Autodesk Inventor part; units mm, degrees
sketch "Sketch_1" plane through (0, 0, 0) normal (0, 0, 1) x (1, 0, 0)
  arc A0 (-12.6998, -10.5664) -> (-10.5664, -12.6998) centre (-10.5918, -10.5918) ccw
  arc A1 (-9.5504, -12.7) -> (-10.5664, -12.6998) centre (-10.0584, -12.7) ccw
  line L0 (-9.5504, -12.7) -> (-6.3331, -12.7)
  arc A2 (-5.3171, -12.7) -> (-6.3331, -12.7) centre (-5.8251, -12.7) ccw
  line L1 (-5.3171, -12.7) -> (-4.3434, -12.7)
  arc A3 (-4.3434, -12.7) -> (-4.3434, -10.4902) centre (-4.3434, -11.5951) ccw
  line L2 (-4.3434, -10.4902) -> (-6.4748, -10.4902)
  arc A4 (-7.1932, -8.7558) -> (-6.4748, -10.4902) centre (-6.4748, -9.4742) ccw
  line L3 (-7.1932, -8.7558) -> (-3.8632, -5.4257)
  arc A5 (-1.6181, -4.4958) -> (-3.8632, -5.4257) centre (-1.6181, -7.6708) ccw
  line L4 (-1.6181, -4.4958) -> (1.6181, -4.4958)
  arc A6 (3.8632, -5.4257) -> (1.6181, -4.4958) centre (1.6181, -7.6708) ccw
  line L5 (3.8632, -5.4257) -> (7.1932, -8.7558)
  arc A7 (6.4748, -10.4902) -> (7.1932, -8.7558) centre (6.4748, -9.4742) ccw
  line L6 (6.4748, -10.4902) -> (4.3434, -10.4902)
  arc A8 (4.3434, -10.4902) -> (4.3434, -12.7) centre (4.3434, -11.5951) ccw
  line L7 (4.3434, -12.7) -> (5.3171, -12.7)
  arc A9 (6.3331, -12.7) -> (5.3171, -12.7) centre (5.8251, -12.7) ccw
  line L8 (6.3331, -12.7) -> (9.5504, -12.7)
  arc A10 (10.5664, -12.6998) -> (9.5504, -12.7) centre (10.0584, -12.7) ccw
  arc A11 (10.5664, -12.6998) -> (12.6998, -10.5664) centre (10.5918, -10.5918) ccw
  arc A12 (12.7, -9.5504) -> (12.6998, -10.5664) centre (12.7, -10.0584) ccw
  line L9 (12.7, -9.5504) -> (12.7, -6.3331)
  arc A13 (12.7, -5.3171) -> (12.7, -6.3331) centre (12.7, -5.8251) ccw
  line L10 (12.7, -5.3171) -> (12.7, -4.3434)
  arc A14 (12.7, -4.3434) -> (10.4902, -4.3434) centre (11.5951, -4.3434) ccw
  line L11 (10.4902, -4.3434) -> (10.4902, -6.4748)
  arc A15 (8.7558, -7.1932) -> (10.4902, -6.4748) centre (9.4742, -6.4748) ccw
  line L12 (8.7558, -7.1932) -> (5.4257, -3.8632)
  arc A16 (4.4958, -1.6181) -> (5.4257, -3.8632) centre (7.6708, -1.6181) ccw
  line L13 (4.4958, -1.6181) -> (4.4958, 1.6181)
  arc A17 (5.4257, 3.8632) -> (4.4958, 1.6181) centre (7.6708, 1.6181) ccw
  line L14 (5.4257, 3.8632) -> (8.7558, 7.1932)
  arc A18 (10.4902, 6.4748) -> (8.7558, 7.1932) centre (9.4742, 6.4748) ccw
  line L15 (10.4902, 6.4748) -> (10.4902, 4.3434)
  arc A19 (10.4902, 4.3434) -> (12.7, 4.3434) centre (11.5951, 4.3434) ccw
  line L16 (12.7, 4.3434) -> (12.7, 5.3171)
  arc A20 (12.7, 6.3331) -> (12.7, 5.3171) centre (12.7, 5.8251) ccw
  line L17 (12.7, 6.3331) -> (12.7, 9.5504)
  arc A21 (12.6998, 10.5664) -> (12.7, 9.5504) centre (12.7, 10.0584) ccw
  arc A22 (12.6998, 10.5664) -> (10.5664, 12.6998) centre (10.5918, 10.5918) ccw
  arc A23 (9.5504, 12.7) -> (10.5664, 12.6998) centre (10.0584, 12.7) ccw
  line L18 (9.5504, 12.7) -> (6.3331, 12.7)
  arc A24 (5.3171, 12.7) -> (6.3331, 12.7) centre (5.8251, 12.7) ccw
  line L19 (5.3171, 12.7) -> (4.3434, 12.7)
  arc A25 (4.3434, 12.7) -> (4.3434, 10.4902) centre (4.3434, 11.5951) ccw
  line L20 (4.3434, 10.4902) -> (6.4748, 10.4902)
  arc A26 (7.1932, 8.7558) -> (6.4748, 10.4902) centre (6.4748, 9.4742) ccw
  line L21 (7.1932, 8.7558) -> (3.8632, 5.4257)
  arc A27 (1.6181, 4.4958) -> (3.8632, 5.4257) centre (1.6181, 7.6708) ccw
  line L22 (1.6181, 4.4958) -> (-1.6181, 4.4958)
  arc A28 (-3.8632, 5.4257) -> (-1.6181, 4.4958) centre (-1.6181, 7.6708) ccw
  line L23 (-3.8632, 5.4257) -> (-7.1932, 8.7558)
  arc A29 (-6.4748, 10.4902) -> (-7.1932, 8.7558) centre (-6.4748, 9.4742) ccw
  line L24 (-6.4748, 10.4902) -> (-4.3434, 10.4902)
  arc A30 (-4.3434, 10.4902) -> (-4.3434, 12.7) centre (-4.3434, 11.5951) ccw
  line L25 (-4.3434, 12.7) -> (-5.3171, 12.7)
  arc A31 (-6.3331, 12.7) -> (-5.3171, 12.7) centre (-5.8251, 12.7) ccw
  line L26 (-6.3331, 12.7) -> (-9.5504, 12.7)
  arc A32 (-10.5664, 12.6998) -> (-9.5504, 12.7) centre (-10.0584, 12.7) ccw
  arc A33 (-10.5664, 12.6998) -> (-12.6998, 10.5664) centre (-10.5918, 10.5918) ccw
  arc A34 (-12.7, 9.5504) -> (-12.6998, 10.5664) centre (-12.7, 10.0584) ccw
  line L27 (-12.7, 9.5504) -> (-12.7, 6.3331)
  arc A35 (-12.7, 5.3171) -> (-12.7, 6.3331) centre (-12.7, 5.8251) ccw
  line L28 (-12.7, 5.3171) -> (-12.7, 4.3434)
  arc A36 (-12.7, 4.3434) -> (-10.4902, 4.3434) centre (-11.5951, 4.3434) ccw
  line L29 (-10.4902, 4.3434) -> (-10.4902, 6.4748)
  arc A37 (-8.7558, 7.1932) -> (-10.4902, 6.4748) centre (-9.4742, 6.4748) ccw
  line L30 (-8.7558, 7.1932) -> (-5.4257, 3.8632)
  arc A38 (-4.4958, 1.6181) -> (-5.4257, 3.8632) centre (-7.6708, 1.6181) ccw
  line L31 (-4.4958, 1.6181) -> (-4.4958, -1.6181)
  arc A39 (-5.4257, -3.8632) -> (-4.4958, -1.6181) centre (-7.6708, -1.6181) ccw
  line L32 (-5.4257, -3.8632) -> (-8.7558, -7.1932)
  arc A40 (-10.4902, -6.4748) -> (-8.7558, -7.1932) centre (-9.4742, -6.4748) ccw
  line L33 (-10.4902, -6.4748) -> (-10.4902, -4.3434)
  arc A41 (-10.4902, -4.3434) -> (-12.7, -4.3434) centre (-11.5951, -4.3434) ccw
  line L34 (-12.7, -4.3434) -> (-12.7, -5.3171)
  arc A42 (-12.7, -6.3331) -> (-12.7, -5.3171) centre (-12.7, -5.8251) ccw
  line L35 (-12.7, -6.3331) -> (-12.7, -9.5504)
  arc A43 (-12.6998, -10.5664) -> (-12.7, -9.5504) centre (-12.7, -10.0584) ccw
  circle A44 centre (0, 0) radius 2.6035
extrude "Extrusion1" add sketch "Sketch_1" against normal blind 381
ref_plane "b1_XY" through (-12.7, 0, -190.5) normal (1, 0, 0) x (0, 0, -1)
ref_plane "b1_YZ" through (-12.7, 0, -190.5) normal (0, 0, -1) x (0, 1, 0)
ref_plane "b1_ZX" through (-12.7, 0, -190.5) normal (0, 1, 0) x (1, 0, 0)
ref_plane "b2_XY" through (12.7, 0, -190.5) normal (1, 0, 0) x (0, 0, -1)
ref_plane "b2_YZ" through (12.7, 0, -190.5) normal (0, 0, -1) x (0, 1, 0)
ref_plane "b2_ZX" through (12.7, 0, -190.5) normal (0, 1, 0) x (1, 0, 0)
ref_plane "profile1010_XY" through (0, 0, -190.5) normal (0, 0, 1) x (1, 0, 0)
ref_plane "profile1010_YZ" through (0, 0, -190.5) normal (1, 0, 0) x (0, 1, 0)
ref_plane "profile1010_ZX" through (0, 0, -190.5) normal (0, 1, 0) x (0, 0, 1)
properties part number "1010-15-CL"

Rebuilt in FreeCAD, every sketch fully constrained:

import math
import FreeCAD as App
import Part
import Sketcher
from FreeCAD import Vector
Q = App.Units.Quantity

doc = App.newDocument("Part")
body = doc.addObject("PartDesign::Body", "Body")

# Sketch on XY plane
sketch1 = body.newObject("Sketcher::SketchObject", "Sketch")
sketch1.AttachmentSupport = (doc.getObject("XY_Plane"), [""])
sketch1.MapMode = "FlatFace"
sketch1.addGeometry([
    Part.ArcOfCircle(Part.Circle(Vector(-12.7, -10.1, 0), Vector(0, 0, 1), 0.5), math.radians(-90), math.radians(90)),  # 0
    Part.ArcOfCircle(Part.Circle(Vector(-10.6, -10.6, 0), Vector(0, 0, 1), 2.1), math.radians(179), math.radians(271)),  # 1
    Part.ArcOfCircle(Part.Circle(Vector(-10.1, -12.7, 0), Vector(0, 0, 1), 0.5), math.radians(0), math.radians(180)),  # 2
    Part.LineSegment(Vector(-9.6, -12.7, 0), Vector(-6.3, -12.7, 0)),  # 3
    Part.ArcOfCircle(Part.Circle(Vector(-5.8, -12.7, 0), Vector(0, 0, 1), 0.5), math.radians(0), math.radians(180)),  # 4
    Part.LineSegment(Vector(-5.3, -12.7, 0), Vector(-4.3, -12.7, 0)),  # 5
    Part.ArcOfCircle(Part.Circle(Vector(-4.3, -11.6, 0), Vector(0, 0, 1), 1.1), math.radians(-90), math.radians(90)),  # 6
    Part.LineSegment(Vector(-4.3, -10.5, 0), Vector(-6.5, -10.5, 0)),  # 7
    Part.ArcOfCircle(Part.Circle(Vector(-6.5, -9.5, 0), Vector(0, 0, 1), 1), math.radians(135), math.radians(270)),  # 8
    Part.LineSegment(Vector(-7.2, -8.8, 0), Vector(-3.9, -5.4, 0)),  # 9
    Part.ArcOfCircle(Part.Circle(Vector(-1.6, -7.7, 0), Vector(0, 0, 1), 3.2), math.radians(90), math.radians(135)),  # 10
    Part.LineSegment(Vector(-1.6, -4.5, 0), Vector(1.6, -4.5, 0)),  # 11
    Part.ArcOfCircle(Part.Circle(Vector(1.6, -7.7, 0), Vector(0, 0, 1), 3.2), math.radians(45), math.radians(90)),  # 12
    Part.LineSegment(Vector(3.9, -5.4, 0), Vector(7.2, -8.8, 0)),  # 13
    Part.ArcOfCircle(Part.Circle(Vector(6.5, -9.5, 0), Vector(0, 0, 1), 1), math.radians(-90), math.radians(45)),  # 14
    Part.LineSegment(Vector(6.5, -10.5, 0), Vector(4.3, -10.5, 0)),  # 15
    Part.ArcOfCircle(Part.Circle(Vector(4.3, -11.6, 0), Vector(0, 0, 1), 1.1), math.radians(90), math.radians(270)),  # 16
    Part.LineSegment(Vector(4.3, -12.7, 0), Vector(5.3, -12.7, 0)),  # 17
    Part.ArcOfCircle(Part.Circle(Vector(5.8, -12.7, 0), Vector(0, 0, 1), 0.5), math.radians(0), math.radians(180)),  # 18
    Part.LineSegment(Vector(6.3, -12.7, 0), Vector(9.6, -12.7, 0)),  # 19
    Part.ArcOfCircle(Part.Circle(Vector(10.1, -12.7, 0), Vector(0, 0, 1), 0.5), math.radians(0), math.radians(180)),  # 20
    Part.ArcOfCircle(Part.Circle(Vector(10.6, -10.6, 0), Vector(0, 0, 1), 2.1), math.radians(-91), math.radians(1)),  # 21
    Part.ArcOfCircle(Part.Circle(Vector(12.7, -10.1, 0), Vector(0, 0, 1), 0.5), math.radians(90), math.radians(270)),  # 22
    Part.LineSegment(Vector(12.7, -9.6, 0), Vector(12.7, -6.3, 0)),  # 23
    Part.ArcOfCircle(Part.Circle(Vector(12.7, -5.8, 0), Vector(0, 0, 1), 0.5), math.radians(90), math.radians(270)),  # 24
    Part.LineSegment(Vector(12.7, -5.3, 0), Vector(12.7, -4.3, 0)),  # 25
    Part.ArcOfCircle(Part.Circle(Vector(11.6, -4.3, 0), Vector(0, 0, 1), 1.1), math.radians(0), math.radians(180)),  # 26
    Part.LineSegment(Vector(10.5, -4.3, 0), Vector(10.5, -6.5, 0)),  # 27
    Part.ArcOfCircle(Part.Circle(Vector(9.5, -6.5, 0), Vector(0, 0, 1), 1), math.radians(-135), math.radians(0)),  # 28
    Part.LineSegment(Vector(8.8, -7.2, 0), Vector(5.4, -3.9, 0)),  # 29
    Part.ArcOfCircle(Part.Circle(Vector(7.7, -1.6, 0), Vector(0, 0, 1), 3.2), math.radians(180), math.radians(225)),  # 30
    Part.LineSegment(Vector(4.5, -1.6, 0), Vector(4.5, 1.6, 0)),  # 31
    Part.ArcOfCircle(Part.Circle(Vector(7.7, 1.6, 0), Vector(0, 0, 1), 3.2), math.radians(135), math.radians(180)),  # 32
    Part.LineSegment(Vector(5.4, 3.9, 0), Vector(8.8, 7.2, 0)),  # 33
    Part.ArcOfCircle(Part.Circle(Vector(9.5, 6.5, 0), Vector(0, 0, 1), 1), math.radians(0), math.radians(135)),  # 34
    Part.LineSegment(Vector(10.5, 6.5, 0), Vector(10.5, 4.3, 0)),  # 35
    Part.ArcOfCircle(Part.Circle(Vector(11.6, 4.3, 0), Vector(0, 0, 1), 1.1), math.radians(180), math.radians(360)),  # 36
    Part.LineSegment(Vector(12.7, 4.3, 0), Vector(12.7, 5.3, 0)),  # 37
    Part.ArcOfCircle(Part.Circle(Vector(12.7, 5.8, 0), Vector(0, 0, 1), 0.5), math.radians(90), math.radians(270)),  # 38
    Part.LineSegment(Vector(12.7, 6.3, 0), Vector(12.7, 9.6, 0)),  # 39
    Part.ArcOfCircle(Part.Circle(Vector(12.7, 10.1, 0), Vector(0, 0, 1), 0.5), math.radians(90), math.radians(270)),  # 40
    Part.ArcOfCircle(Part.Circle(Vector(10.6, 10.6, 0), Vector(0, 0, 1), 2.1), math.radians(-1), math.radians(91)),  # 41
    Part.ArcOfCircle(Part.Circle(Vector(10.1, 12.7, 0), Vector(0, 0, 1), 0.5), math.radians(180), math.radians(360)),  # 42
    Part.LineSegment(Vector(9.6, 12.7, 0), Vector(6.3, 12.7, 0)),  # 43
    Part.ArcOfCircle(Part.Circle(Vector(5.8, 12.7, 0), Vector(0, 0, 1), 0.5), math.radians(180), math.radians(360)),  # 44
    Part.LineSegment(Vector(5.3, 12.7, 0), Vector(4.3, 12.7, 0)),  # 45
    Part.ArcOfCircle(Part.Circle(Vector(4.3, 11.6, 0), Vector(0, 0, 1), 1.1), math.radians(90), math.radians(270)),  # 46
    Part.LineSegment(Vector(4.3, 10.5, 0), Vector(6.5, 10.5, 0)),  # 47
    Part.ArcOfCircle(Part.Circle(Vector(6.5, 9.5, 0), Vector(0, 0, 1), 1), math.radians(-45), math.radians(90)),  # 48
    Part.LineSegment(Vector(7.2, 8.8, 0), Vector(3.9, 5.4, 0)),  # 49
    Part.ArcOfCircle(Part.Circle(Vector(1.6, 7.7, 0), Vector(0, 0, 1), 3.2), math.radians(-90), math.radians(-45)),  # 50
    Part.LineSegment(Vector(1.6, 4.5, 0), Vector(-1.6, 4.5, 0)),  # 51
    Part.ArcOfCircle(Part.Circle(Vector(-1.6, 7.7, 0), Vector(0, 0, 1), 3.2), math.radians(-135), math.radians(-90)),  # 52
    Part.LineSegment(Vector(-3.9, 5.4, 0), Vector(-7.2, 8.8, 0)),  # 53
    Part.ArcOfCircle(Part.Circle(Vector(-6.5, 9.5, 0), Vector(0, 0, 1), 1), math.radians(90), math.radians(225)),  # 54
    Part.LineSegment(Vector(-6.5, 10.5, 0), Vector(-4.3, 10.5, 0)),  # 55
    Part.ArcOfCircle(Part.Circle(Vector(-4.3, 11.6, 0), Vector(0, 0, 1), 1.1), math.radians(-90), math.radians(90)),  # 56
    Part.LineSegment(Vector(-4.3, 12.7, 0), Vector(-5.3, 12.7, 0)),  # 57
    Part.ArcOfCircle(Part.Circle(Vector(-5.8, 12.7, 0), Vector(0, 0, 1), 0.5), math.radians(180), math.radians(360)),  # 58
    Part.LineSegment(Vector(-6.3, 12.7, 0), Vector(-9.6, 12.7, 0)),  # 59
    Part.ArcOfCircle(Part.Circle(Vector(-10.1, 12.7, 0), Vector(0, 0, 1), 0.5), math.radians(-180), math.radians(0)),  # 60
    Part.ArcOfCircle(Part.Circle(Vector(-10.6, 10.6, 0), Vector(0, 0, 1), 2.1), math.radians(89), math.radians(181)),  # 61
    Part.ArcOfCircle(Part.Circle(Vector(-12.7, 10.1, 0), Vector(0, 0, 1), 0.5), math.radians(-90), math.radians(90)),  # 62
    Part.LineSegment(Vector(-12.7, 9.6, 0), Vector(-12.7, 6.3, 0)),  # 63
    Part.ArcOfCircle(Part.Circle(Vector(-12.7, 5.8, 0), Vector(0, 0, 1), 0.5), math.radians(-90), math.radians(90)),  # 64
    Part.LineSegment(Vector(-12.7, 5.3, 0), Vector(-12.7, 4.3, 0)),  # 65
    Part.ArcOfCircle(Part.Circle(Vector(-11.6, 4.3, 0), Vector(0, 0, 1), 1.1), math.radians(180), math.radians(360)),  # 66
    Part.LineSegment(Vector(-10.5, 4.3, 0), Vector(-10.5, 6.5, 0)),  # 67
    Part.ArcOfCircle(Part.Circle(Vector(-9.5, 6.5, 0), Vector(0, 0, 1), 1), math.radians(45), math.radians(180)),  # 68
    Part.LineSegment(Vector(-8.8, 7.2, 0), Vector(-5.4, 3.9, 0)),  # 69
    Part.ArcOfCircle(Part.Circle(Vector(-7.7, 1.6, 0), Vector(0, 0, 1), 3.2), math.radians(0), math.radians(45)),  # 70
    Part.LineSegment(Vector(-4.5, 1.6, 0), Vector(-4.5, -1.6, 0)),  # 71
    Part.ArcOfCircle(Part.Circle(Vector(-7.7, -1.6, 0), Vector(0, 0, 1), 3.2), math.radians(-45), math.radians(0)),  # 72
    Part.LineSegment(Vector(-5.4, -3.9, 0), Vector(-8.8, -7.2, 0)),  # 73
    Part.ArcOfCircle(Part.Circle(Vector(-9.5, -6.5, 0), Vector(0, 0, 1), 1), math.radians(180), math.radians(315)),  # 74
    Part.LineSegment(Vector(-10.5, -6.5, 0), Vector(-10.5, -4.3, 0)),  # 75
    Part.ArcOfCircle(Part.Circle(Vector(-11.6, -4.3, 0), Vector(0, 0, 1), 1.1), math.radians(0), math.radians(180)),  # 76
    Part.LineSegment(Vector(-12.7, -4.3, 0), Vector(-12.7, -5.3, 0)),  # 77
    Part.ArcOfCircle(Part.Circle(Vector(-12.7, -5.8, 0), Vector(0, 0, 1), 0.5), math.radians(-90), math.radians(90)),  # 78
    Part.LineSegment(Vector(-12.7, -6.3, 0), Vector(-12.7, -9.6, 0)),  # 79
    Part.Circle(Vector(0, 0, 0), Vector(0, 0, 1), 2.6),  # 80
], False)
sketch1.addConstraint([
    Sketcher.Constraint("Coincident", 0, 1, 1, 1),
    Sketcher.Constraint("Coincident", 1, 2, 2, 2),
    Sketcher.Constraint("Coincident", 2, 1, 3, 1),
    Sketcher.Constraint("Coincident", 3, 2, 4, 2),
    Sketcher.Constraint("Coincident", 4, 1, 5, 1),
    Sketcher.Constraint("Tangent", 5, 2, 6, 1),
    Sketcher.Constraint("Tangent", 6, 2, 7, 1),
    Sketcher.Constraint("Tangent", 7, 2, 8, 2),
    Sketcher.Constraint("Tangent", 8, 1, 9, 1),
    Sketcher.Constraint("Tangent", 9, 2, 10, 2),
    Sketcher.Constraint("Tangent", 10, 1, 11, 1),
    Sketcher.Constraint("Tangent", 11, 2, 12, 2),
    Sketcher.Constraint("Tangent", 12, 1, 13, 1),
    Sketcher.Constraint("Tangent", 13, 2, 14, 2),
    Sketcher.Constraint("Tangent", 14, 1, 15, 1),
    Sketcher.Constraint("Tangent", 15, 2, 16, 1),
    Sketcher.Constraint("Tangent", 16, 2, 17, 1),
    Sketcher.Constraint("Coincident", 17, 2, 18, 2),
    Sketcher.Constraint("Coincident", 18, 1, 19, 1),
    Sketcher.Constraint("Coincident", 19, 2, 20, 2),
    Sketcher.Constraint("Coincident", 20, 1, 21, 1),
    Sketcher.Constraint("Coincident", 21, 2, 22, 2),
    Sketcher.Constraint("Coincident", 22, 1, 23, 1),
    Sketcher.Constraint("Coincident", 23, 2, 24, 2),
    Sketcher.Constraint("Coincident", 24, 1, 25, 1),
    Sketcher.Constraint("Tangent", 25, 2, 26, 1),
    Sketcher.Constraint("Tangent", 26, 2, 27, 1),
    Sketcher.Constraint("Tangent", 27, 2, 28, 2),
    Sketcher.Constraint("Tangent", 28, 1, 29, 1),
    Sketcher.Constraint("Tangent", 29, 2, 30, 2),
    Sketcher.Constraint("Tangent", 30, 1, 31, 1),
    Sketcher.Constraint("Tangent", 31, 2, 32, 2),
    Sketcher.Constraint("Tangent", 32, 1, 33, 1),
    Sketcher.Constraint("Tangent", 33, 2, 34, 2),
    Sketcher.Constraint("Tangent", 34, 1, 35, 1),
    Sketcher.Constraint("Tangent", 35, 2, 36, 1),
    Sketcher.Constraint("Tangent", 36, 2, 37, 1),
    Sketcher.Constraint("Coincident", 37, 2, 38, 2),
    Sketcher.Constraint("Coincident", 38, 1, 39, 1),
    Sketcher.Constraint("Coincident", 39, 2, 40, 2),
    Sketcher.Constraint("Coincident", 40, 1, 41, 1),
    Sketcher.Constraint("Coincident", 41, 2, 42, 2),
    Sketcher.Constraint("Coincident", 42, 1, 43, 1),
    Sketcher.Constraint("Coincident", 43, 2, 44, 2),
    Sketcher.Constraint("Coincident", 44, 1, 45, 1),
    Sketcher.Constraint("Tangent", 45, 2, 46, 1),
    Sketcher.Constraint("Tangent", 46, 2, 47, 1),
    Sketcher.Constraint("Tangent", 47, 2, 48, 2),
    Sketcher.Constraint("Tangent", 48, 1, 49, 1),
    Sketcher.Constraint("Tangent", 49, 2, 50, 2),
    Sketcher.Constraint("Tangent", 50, 1, 51, 1),
    Sketcher.Constraint("Tangent", 51, 2, 52, 2),
    Sketcher.Constraint("Tangent", 52, 1, 53, 1),
    Sketcher.Constraint("Tangent", 53, 2, 54, 2),
    Sketcher.Constraint("Tangent", 54, 1, 55, 1),
    Sketcher.Constraint("Tangent", 55, 2, 56, 1),
    Sketcher.Constraint("Tangent", 56, 2, 57, 1),
    Sketcher.Constraint("Coincident", 57, 2, 58, 2),
    Sketcher.Constraint("Coincident", 58, 1, 59, 1),
    Sketcher.Constraint("Coincident", 59, 2, 60, 2),
    Sketcher.Constraint("Coincident", 60, 1, 61, 1),
    Sketcher.Constraint("Coincident", 61, 2, 62, 2),
    Sketcher.Constraint("Coincident", 62, 1, 63, 1),
    Sketcher.Constraint("Coincident", 63, 2, 64, 2),
    Sketcher.Constraint("Coincident", 64, 1, 65, 1),
    Sketcher.Constraint("Tangent", 65, 2, 66, 1),
    Sketcher.Constraint("Tangent", 66, 2, 67, 1),
    Sketcher.Constraint("Tangent", 67, 2, 68, 2),
    Sketcher.Constraint("Tangent", 68, 1, 69, 1),
    Sketcher.Constraint("Tangent", 69, 2, 70, 2),
    Sketcher.Constraint("Tangent", 70, 1, 71, 1),
    Sketcher.Constraint("Tangent", 71, 2, 72, 2),
    Sketcher.Constraint("Tangent", 72, 1, 73, 1),
    Sketcher.Constraint("Tangent", 73, 2, 74, 2),
    Sketcher.Constraint("Tangent", 74, 1, 75, 1),
    Sketcher.Constraint("Tangent", 75, 2, 76, 1),
    Sketcher.Constraint("Tangent", 76, 2, 77, 1),
    Sketcher.Constraint("Coincident", 77, 2, 78, 2),
    Sketcher.Constraint("Coincident", 78, 1, 79, 1),
    Sketcher.Constraint("Coincident", 79, 2, 0, 2),
    Sketcher.Constraint("Horizontal", 3),
    Sketcher.Constraint("Horizontal", 5),
    Sketcher.Constraint("Horizontal", 7),
    Sketcher.Constraint("Horizontal", 11),
    Sketcher.Constraint("Horizontal", 15),
    Sketcher.Constraint("Horizontal", 17),
    Sketcher.Constraint("Horizontal", 19),
    Sketcher.Constraint("Vertical", 23),
    Sketcher.Constraint("Vertical", 25),
    Sketcher.Constraint("Vertical", 27),
    Sketcher.Constraint("Vertical", 31),
    Sketcher.Constraint("Vertical", 35),
    Sketcher.Constraint("Vertical", 37),
    Sketcher.Constraint("Vertical", 39),
    Sketcher.Constraint("Horizontal", 43),
    Sketcher.Constraint("Horizontal", 45),
    Sketcher.Constraint("Horizontal", 47),
    Sketcher.Constraint("Horizontal", 51),
    Sketcher.Constraint("Horizontal", 55),
    Sketcher.Constraint("Horizontal", 57),
    Sketcher.Constraint("Horizontal", 59),
    Sketcher.Constraint("Vertical", 63),
    Sketcher.Constraint("Vertical", 65),
    Sketcher.Constraint("Vertical", 67),
    Sketcher.Constraint("Vertical", 71),
    Sketcher.Constraint("Vertical", 75),
    Sketcher.Constraint("Vertical", 77),
    Sketcher.Constraint("Vertical", 79),
    Sketcher.Constraint("Coincident", 80, 3, -1, 1),
    Sketcher.Constraint("Equal", 0, 2),
    Sketcher.Constraint("Equal", 2, 4),
    Sketcher.Constraint("Equal", 10, 12),
    Sketcher.Constraint("Equal", 8, 14),
    Sketcher.Constraint("Equal", 6, 16),
    Sketcher.Constraint("Equal", 4, 18),
    Sketcher.Constraint("Equal", 18, 20),
    Sketcher.Constraint("Equal", 1, 21),
    Sketcher.Constraint("Equal", 20, 22),
    Sketcher.Constraint("Equal", 22, 24),
    Sketcher.Constraint("Equal", 16, 26),
    Sketcher.Constraint("Equal", 14, 28),
    Sketcher.Constraint("Equal", 12, 30),
    Sketcher.Constraint("Equal", 30, 32),
    Sketcher.Constraint("Equal", 28, 34),
    Sketcher.Constraint("Equal", 26, 36),
    Sketcher.Constraint("Equal", 24, 38),
    Sketcher.Constraint("Equal", 38, 40),
    Sketcher.Constraint("Equal", 21, 41),
    Sketcher.Constraint("Equal", 40, 42),
    Sketcher.Constraint("Equal", 42, 44),
    Sketcher.Constraint("Equal", 36, 46),
    Sketcher.Constraint("Equal", 34, 48),
    Sketcher.Constraint("Equal", 32, 50),
    Sketcher.Constraint("Equal", 50, 52),
    Sketcher.Constraint("Equal", 48, 54),
    Sketcher.Constraint("Equal", 46, 56),
    Sketcher.Constraint("Equal", 44, 58),
    Sketcher.Constraint("Equal", 58, 60),
    Sketcher.Constraint("Equal", 41, 61),
    Sketcher.Constraint("Equal", 60, 62),
    Sketcher.Constraint("Equal", 62, 64),
    Sketcher.Constraint("Equal", 56, 66),
    Sketcher.Constraint("Equal", 54, 68),
    Sketcher.Constraint("Equal", 52, 70),
    Sketcher.Constraint("Equal", 70, 72),
    Sketcher.Constraint("Equal", 68, 74),
    Sketcher.Constraint("Equal", 66, 76),
    Sketcher.Constraint("Equal", 64, 78),
    Sketcher.Constraint("Symmetric", 0, 3, 40, 3, -1, 1),
    Sketcher.Constraint("Symmetric", 1, 3, 41, 3, -1, 1),
    Sketcher.Constraint("Symmetric", 2, 3, 42, 3, -1, 1),
    Sketcher.Constraint("Symmetric", 4, 3, 44, 3, -1, 1),
    Sketcher.Constraint("Symmetric", 6, 3, 46, 3, -1, 1),
    Sketcher.Constraint("Symmetric", 10, 3, 50, 3, -1, 1),
    Sketcher.Constraint("Symmetric", 14, 3, 54, 3, -1, 1),
    Sketcher.Constraint("Symmetric", 18, 3, 58, 3, -1, 1),
    Sketcher.Constraint("Symmetric", 20, 3, 60, 3, -1, 1),
    Sketcher.Constraint("Symmetric", 21, 3, 61, 3, -1, 1),
    Sketcher.Constraint("Symmetric", 22, 3, 62, 3, -1, 1),
    Sketcher.Constraint("Symmetric", 24, 3, 64, 3, -1, 1),
    Sketcher.Constraint("Symmetric", 26, 3, 66, 3, -1, 1),
    Sketcher.Constraint("Symmetric", 30, 3, 70, 3, -1, 1),
    Sketcher.Constraint("Symmetric", 34, 3, 74, 3, -1, 1),
    Sketcher.Constraint("Symmetric", 38, 3, 78, 3, -1, 1),
    Sketcher.Constraint("Symmetric", 8, 3, 14, 3, -2),
    Sketcher.Constraint("Symmetric", 4, 3, 18, 3, -2),
    Sketcher.Constraint("Symmetric", 2, 3, 20, 3, -2),
    Sketcher.Constraint("Symmetric", 1, 3, 21, 3, -2),
    Sketcher.Constraint("Symmetric", 0, 3, 22, 3, -2),
    Sketcher.Constraint("Symmetric", 38, 3, 64, 3, -2),
    Sketcher.Constraint("Symmetric", 36, 3, 66, 3, -2),
    Sketcher.Constraint("Symmetric", 49, 2, 52, 1, -2),
    Sketcher.Constraint("Symmetric", 33, 2, 68, 1, -2),
    Sketcher.Constraint("Symmetric", 29, 2, 72, 1, -2),
    Sketcher.Constraint("Perpendicular", 9, 13),
    Sketcher.Constraint("Parallel", 13, 29),
    Sketcher.Constraint("Perpendicular", 29, 33),
    Sketcher.Constraint("Horizontal", 2, 3, 4, 3),
    Sketcher.Constraint("Horizontal", 26, 3, 76, 3),
    Sketcher.Constraint("Horizontal", 20, 3, 1, 2),
    Sketcher.Constraint("Horizontal", 1, 2, 2, 1),
    Sketcher.Constraint("Horizontal", 3, 2, 4, 1),
    Sketcher.Constraint("Horizontal", 17, 2, 18, 1),
    Sketcher.Constraint("Horizontal", 41, 2, 42, 1),
    Sketcher.Constraint("Horizontal", 57, 2, 58, 1),
    Sketcher.Constraint("Vertical", 22, 3, 24, 3),
    Sketcher.Constraint("Vertical", 16, 3, 46, 3),
    Sketcher.Constraint("Vertical", 6, 3, 56, 3),
    Sketcher.Constraint("Vertical", 78, 3, 0, 1),
    Sketcher.Constraint("Vertical", 21, 2, 22, 1),
    Sketcher.Constraint("Vertical", 23, 2, 24, 1),
    Sketcher.Constraint("Vertical", 37, 2, 38, 1),
    Sketcher.Constraint("Vertical", 61, 2, 62, 1),
    Sketcher.Constraint("Vertical", 77, 2, 78, 1),
    Sketcher.Constraint("Equal", 59, 23),
    Sketcher.Constraint("Equal", 57, 25),
    Sketcher.Constraint("Equal", 55, 27),
    Sketcher.Constraint("Equal", 51, 31),
    Sketcher.Constraint("Equal", 13, 29),
    Sketcher.Constraint("Radius", 0, Q("0.02 in")),
    Sketcher.Constraint("Radius", 8, Q("0.04 in")),
    Sketcher.Constraint("Diameter", 80, Q("0.205 in")),
    Sketcher.Constraint("Radius", 1, Q("0.083 in")),
    Sketcher.Constraint("Radius", 10, Q("0.125 in")),
    Sketcher.Constraint("DistanceX", 0, 3, -1, 1, Q("0.5 in")),
    Sketcher.Constraint("DistanceY", 2, 3, -1, 1, Q("0.5 in")),
    Sketcher.Constraint("Radius", 6, Q("0.0435 in")),
    Sketcher.Constraint("DistanceX", 11, 1, 11, 2, Q("0.1274 in")),
    Sketcher.Constraint("DistanceY", 0, 3, -1, 1, Q("0.396 in")),
    Sketcher.Constraint("DistanceX", 6, 3, -1, 1, Q("0.171 in")),
    Sketcher.Constraint("DistanceY", 10, 3, -1, 1, Q("0.302 in")),
    Sketcher.Constraint("DistanceX", 3, 1, 3, 2, Q("3.2173 mm")),
])
pad1 = body.newObject("PartDesign::Pad", "Pad")
pad1.Profile = sketch1
pad1.Length = Q("15 in")
pad1.Reversed = True

doc.recompute()
